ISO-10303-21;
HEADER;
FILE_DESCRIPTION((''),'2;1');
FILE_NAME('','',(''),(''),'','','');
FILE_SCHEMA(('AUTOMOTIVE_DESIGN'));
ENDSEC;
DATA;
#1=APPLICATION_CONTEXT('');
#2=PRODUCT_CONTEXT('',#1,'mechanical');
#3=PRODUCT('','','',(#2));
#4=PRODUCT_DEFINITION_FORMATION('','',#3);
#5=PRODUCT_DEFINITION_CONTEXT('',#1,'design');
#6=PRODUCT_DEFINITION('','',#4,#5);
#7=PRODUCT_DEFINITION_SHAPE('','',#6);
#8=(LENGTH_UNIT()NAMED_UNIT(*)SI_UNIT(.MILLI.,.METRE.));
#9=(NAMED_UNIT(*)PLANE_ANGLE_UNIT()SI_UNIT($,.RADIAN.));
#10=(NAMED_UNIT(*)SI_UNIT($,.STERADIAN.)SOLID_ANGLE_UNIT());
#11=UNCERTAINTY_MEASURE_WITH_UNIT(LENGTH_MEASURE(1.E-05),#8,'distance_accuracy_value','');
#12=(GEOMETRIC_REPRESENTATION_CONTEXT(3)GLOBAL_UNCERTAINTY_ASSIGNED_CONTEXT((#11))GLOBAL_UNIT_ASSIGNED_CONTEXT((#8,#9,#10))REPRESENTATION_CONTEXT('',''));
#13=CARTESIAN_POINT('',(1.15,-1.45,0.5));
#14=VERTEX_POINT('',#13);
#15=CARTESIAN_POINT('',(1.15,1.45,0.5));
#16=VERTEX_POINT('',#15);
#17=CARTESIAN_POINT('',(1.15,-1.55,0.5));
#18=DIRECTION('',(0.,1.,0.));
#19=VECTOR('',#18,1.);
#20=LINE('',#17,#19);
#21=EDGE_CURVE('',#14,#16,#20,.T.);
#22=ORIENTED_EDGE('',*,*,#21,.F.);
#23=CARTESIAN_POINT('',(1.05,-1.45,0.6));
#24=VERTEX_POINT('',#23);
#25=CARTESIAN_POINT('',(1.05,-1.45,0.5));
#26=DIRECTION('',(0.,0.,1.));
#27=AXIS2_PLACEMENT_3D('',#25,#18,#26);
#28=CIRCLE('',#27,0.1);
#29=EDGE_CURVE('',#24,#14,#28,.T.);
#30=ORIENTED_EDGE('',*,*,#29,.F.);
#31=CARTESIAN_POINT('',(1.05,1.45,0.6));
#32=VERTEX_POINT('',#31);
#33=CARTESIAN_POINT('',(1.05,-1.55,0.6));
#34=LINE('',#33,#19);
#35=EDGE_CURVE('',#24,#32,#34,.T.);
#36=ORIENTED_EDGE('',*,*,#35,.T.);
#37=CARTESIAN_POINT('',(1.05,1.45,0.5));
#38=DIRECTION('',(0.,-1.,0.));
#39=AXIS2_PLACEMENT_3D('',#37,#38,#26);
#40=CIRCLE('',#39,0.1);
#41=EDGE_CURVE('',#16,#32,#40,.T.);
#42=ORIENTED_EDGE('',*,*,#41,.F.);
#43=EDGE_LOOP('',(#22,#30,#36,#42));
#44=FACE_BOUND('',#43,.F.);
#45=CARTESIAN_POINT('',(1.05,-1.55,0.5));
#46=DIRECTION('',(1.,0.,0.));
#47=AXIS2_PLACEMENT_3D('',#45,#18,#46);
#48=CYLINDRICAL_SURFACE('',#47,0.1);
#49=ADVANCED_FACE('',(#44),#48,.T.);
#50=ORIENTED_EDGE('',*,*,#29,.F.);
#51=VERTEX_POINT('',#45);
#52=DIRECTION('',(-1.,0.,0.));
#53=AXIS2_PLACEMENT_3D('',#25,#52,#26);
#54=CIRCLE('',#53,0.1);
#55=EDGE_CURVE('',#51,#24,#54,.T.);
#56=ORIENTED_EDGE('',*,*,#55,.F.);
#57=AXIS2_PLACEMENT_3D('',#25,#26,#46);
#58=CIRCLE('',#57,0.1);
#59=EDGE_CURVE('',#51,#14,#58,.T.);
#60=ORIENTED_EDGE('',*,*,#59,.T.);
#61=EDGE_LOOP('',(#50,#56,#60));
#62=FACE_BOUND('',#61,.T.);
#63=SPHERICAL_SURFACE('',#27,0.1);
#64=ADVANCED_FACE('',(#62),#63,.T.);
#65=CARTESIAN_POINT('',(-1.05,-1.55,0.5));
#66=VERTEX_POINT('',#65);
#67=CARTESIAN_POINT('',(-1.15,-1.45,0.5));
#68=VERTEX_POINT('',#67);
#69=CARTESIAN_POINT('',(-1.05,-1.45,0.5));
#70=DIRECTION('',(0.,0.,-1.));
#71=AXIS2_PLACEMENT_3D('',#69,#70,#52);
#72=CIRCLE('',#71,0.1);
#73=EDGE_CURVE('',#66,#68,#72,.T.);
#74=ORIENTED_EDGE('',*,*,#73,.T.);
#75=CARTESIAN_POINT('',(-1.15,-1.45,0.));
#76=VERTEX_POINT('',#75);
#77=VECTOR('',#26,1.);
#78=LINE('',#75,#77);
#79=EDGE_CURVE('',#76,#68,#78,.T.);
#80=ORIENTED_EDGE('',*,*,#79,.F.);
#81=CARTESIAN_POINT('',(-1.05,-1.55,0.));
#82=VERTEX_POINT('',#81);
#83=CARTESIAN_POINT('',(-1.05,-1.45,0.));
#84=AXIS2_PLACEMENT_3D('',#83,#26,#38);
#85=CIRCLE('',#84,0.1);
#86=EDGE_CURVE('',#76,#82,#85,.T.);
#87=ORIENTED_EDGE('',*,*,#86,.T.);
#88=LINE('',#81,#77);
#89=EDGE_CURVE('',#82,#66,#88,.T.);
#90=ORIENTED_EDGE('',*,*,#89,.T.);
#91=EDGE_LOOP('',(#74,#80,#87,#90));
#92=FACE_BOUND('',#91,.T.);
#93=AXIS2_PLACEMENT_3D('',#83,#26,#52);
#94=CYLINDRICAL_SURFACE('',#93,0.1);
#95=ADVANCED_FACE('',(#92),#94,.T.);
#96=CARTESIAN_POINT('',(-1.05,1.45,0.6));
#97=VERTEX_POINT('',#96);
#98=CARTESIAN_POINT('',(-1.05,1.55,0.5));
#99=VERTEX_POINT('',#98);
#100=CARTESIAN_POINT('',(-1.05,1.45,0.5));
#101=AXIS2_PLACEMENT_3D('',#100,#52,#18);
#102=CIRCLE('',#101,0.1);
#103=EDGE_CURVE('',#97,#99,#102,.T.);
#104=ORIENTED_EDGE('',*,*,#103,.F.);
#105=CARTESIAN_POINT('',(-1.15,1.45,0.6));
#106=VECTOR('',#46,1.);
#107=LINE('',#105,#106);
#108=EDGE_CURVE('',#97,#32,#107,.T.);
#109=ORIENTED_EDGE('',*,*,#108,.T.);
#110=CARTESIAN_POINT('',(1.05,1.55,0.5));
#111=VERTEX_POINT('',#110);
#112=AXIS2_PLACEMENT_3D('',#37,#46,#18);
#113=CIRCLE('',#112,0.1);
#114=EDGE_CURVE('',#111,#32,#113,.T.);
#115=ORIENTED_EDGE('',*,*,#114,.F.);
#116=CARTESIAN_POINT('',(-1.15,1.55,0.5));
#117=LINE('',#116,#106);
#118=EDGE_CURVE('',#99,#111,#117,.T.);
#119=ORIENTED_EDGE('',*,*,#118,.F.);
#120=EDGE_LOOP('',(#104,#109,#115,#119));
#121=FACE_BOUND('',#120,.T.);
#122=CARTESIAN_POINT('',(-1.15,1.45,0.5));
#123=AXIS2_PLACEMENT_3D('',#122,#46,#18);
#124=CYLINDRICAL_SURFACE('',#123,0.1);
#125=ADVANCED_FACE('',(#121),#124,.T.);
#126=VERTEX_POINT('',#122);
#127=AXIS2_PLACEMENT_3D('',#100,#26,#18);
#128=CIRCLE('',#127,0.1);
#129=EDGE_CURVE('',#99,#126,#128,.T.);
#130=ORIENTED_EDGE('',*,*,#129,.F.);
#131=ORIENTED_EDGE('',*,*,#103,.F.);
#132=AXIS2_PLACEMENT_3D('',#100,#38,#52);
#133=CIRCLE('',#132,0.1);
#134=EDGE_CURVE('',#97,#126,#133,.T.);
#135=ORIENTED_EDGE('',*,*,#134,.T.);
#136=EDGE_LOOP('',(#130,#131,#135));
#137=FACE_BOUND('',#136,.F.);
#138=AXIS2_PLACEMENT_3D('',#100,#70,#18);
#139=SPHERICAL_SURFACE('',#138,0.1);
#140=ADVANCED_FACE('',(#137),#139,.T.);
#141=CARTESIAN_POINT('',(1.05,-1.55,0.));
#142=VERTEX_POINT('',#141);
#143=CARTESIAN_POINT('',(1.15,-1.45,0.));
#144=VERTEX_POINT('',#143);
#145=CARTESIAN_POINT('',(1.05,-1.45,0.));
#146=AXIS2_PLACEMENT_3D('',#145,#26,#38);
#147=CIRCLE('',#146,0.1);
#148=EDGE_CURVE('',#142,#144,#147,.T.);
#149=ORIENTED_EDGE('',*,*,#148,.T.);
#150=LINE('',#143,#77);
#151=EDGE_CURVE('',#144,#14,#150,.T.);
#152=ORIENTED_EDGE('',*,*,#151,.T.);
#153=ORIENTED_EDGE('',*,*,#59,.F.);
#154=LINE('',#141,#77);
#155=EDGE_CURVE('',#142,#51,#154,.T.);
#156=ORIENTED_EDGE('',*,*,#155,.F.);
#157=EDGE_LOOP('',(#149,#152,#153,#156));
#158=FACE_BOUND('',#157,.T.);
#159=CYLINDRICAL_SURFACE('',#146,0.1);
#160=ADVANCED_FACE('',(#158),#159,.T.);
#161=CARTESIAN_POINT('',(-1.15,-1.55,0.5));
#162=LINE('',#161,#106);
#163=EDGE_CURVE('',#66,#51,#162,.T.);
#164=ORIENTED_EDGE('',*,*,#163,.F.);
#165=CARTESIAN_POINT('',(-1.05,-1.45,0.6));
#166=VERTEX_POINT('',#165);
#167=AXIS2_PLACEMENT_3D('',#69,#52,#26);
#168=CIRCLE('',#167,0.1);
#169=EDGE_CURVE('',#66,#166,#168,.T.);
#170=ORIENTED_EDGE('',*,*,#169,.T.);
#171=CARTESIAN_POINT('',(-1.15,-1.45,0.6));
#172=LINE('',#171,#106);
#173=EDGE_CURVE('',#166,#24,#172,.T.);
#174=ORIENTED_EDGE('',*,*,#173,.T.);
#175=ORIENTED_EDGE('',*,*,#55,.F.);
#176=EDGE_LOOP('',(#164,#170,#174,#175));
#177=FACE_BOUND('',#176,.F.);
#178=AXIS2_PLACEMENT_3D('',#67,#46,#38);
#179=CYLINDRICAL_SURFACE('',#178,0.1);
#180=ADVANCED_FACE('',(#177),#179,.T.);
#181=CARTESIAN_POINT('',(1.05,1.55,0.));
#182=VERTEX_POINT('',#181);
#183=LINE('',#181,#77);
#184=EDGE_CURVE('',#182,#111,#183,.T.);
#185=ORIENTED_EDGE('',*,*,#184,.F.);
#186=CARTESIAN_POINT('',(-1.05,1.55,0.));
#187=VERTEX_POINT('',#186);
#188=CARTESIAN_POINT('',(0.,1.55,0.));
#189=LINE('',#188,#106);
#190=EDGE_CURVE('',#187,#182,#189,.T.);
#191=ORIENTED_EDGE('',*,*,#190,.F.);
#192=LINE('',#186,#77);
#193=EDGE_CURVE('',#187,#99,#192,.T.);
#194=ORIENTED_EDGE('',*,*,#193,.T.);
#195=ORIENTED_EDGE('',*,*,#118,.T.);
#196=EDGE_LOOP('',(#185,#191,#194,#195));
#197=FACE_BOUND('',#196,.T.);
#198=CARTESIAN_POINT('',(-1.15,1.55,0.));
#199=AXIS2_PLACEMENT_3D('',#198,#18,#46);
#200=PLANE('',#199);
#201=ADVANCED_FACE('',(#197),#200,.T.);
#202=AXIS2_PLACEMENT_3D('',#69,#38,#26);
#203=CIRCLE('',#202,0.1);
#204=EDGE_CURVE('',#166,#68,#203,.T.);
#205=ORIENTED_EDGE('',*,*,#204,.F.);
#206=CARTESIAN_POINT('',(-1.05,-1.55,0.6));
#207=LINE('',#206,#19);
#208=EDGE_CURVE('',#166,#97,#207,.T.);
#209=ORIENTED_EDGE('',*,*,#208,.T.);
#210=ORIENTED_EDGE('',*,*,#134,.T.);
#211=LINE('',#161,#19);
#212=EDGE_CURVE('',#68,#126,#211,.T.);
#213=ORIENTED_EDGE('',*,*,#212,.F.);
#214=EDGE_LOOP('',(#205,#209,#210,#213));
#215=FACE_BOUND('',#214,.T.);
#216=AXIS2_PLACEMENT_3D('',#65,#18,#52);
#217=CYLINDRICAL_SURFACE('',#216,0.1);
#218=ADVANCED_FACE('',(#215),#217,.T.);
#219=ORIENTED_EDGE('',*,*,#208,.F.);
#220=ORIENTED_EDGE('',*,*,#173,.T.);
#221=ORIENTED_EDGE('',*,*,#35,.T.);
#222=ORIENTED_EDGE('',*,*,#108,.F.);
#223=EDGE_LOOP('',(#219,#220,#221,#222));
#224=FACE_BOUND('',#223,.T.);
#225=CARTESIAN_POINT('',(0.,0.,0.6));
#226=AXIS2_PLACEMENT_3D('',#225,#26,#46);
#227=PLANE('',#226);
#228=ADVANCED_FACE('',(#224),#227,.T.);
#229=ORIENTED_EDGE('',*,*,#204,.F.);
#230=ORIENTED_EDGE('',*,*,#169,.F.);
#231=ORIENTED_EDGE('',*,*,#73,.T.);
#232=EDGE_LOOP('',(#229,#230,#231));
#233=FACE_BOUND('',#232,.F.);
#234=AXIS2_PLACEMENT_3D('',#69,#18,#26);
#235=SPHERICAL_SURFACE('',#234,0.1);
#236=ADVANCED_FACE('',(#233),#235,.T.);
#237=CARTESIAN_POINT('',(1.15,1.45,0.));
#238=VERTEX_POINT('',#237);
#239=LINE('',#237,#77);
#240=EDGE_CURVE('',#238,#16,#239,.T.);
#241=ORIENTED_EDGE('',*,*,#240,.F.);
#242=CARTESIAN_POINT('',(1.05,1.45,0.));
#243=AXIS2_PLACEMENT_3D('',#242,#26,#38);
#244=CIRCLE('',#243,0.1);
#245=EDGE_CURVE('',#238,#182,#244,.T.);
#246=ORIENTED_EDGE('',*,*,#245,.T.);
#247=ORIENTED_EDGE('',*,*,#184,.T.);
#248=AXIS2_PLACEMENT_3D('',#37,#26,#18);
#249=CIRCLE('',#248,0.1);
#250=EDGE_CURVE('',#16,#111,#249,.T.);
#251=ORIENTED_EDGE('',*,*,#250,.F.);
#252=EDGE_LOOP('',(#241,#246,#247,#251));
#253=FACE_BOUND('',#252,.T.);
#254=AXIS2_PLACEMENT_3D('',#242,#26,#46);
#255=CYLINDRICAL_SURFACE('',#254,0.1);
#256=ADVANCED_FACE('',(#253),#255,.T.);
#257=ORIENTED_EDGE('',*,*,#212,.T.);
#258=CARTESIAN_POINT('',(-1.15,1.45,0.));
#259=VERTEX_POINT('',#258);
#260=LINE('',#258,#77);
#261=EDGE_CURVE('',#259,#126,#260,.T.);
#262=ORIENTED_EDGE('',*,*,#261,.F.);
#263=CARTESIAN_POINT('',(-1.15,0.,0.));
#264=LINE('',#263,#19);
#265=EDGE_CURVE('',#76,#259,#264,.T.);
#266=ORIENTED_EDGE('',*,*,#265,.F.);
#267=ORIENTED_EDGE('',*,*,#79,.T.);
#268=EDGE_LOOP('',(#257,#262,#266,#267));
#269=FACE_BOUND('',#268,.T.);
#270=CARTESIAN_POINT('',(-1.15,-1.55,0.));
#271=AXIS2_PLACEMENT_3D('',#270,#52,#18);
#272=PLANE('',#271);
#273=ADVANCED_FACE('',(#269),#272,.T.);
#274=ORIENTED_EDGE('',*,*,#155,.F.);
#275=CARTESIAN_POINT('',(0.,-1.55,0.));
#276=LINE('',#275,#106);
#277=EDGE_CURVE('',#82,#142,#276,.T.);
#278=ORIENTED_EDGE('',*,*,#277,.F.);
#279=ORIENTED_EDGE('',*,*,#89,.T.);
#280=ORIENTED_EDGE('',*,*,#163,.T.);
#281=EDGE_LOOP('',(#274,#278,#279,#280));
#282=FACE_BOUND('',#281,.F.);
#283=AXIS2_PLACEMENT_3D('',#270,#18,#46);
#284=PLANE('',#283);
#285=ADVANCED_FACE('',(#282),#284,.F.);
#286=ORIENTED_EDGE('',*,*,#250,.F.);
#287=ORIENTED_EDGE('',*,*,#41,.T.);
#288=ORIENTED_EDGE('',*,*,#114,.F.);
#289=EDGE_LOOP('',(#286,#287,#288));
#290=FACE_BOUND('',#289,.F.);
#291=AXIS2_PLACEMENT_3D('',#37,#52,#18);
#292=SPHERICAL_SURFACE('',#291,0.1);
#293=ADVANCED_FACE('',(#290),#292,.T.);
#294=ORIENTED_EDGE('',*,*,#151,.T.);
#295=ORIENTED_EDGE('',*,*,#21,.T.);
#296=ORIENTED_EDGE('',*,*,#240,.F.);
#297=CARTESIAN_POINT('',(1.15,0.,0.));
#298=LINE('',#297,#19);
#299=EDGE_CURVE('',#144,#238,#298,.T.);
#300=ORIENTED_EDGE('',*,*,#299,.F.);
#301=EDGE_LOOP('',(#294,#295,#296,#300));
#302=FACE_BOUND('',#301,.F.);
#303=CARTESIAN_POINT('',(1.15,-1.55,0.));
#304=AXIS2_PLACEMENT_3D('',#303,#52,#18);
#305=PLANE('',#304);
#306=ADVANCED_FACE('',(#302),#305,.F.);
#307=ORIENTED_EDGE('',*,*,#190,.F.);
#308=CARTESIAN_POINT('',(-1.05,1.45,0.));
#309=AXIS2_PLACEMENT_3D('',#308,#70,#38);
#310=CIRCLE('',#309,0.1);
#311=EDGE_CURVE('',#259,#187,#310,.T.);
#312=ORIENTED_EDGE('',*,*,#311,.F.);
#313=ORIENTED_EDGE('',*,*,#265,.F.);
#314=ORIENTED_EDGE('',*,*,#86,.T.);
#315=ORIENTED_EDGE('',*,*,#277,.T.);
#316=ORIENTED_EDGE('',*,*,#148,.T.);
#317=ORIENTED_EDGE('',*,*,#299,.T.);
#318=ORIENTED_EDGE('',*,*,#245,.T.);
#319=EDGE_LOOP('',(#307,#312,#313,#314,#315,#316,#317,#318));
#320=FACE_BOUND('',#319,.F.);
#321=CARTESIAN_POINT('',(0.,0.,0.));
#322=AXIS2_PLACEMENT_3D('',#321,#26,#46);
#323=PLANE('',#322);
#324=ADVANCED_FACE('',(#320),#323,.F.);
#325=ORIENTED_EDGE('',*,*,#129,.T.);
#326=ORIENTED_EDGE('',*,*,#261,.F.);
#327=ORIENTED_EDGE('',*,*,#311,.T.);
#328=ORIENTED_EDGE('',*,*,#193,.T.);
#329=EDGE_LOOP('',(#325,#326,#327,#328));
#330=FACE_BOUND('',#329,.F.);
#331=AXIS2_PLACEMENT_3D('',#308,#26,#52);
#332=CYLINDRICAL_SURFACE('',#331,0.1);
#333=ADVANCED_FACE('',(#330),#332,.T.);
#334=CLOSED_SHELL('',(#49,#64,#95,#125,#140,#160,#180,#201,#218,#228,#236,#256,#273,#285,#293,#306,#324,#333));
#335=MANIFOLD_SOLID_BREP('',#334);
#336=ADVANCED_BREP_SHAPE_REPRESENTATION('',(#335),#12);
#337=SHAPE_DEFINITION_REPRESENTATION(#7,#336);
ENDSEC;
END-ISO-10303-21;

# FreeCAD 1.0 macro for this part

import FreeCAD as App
import Part
import Sketcher

V = App.Vector


def edges_at(feature, points):
    """Names of the edges that pass closest to the given points."""
    edges = feature.Shape.Edges
    near = lambda p: min(range(len(edges)), key=lambda i: edges[i].distToShape(Part.Vertex(*p))[0])
    return sorted({f"Edge{near(p) + 1}" for p in points})


def add_polygon(sketch, points):
    """Adds a closed chain of lines whose ends are joined by coincident constraints."""
    first, n = sketch.GeometryCount, len(points)
    for a, b in zip(points, points[1:] + points[:1]):
        sketch.addGeometry(Part.LineSegment(App.Vector(*a, 0), App.Vector(*b, 0)), False)
    for i in range(n):
        sketch.addConstraint(Sketcher.Constraint("Coincident", first + i, 2, first + (i + 1) % n, 1))

doc = App.newDocument("Part")
body = doc.addObject("PartDesign::Body", "Body")

# Sketch on XY plane
sketch1 = body.newObject("Sketcher::SketchObject", "Sketch")
sketch1.AttachmentSupport = (doc.getObject("XY_Plane"), [""])
sketch1.MapMode = "FlatFace"
add_polygon(sketch1, [(-1.15, 1.55), (-1.15, -1.55), (1.15, -1.55), (1.15, 1.55)])  # lines 0-3
sketch1.addConstraint(Sketcher.Constraint("Vertical", 0))
sketch1.addConstraint(Sketcher.Constraint("Horizontal", 1))
sketch1.addConstraint(Sketcher.Constraint("Vertical", 2))
sketch1.addConstraint(Sketcher.Constraint("Horizontal", 3))
sketch1.addConstraint(Sketcher.Constraint("Symmetric", 0, 2, 2, 2, -1, 1))
sketch1.addConstraint(Sketcher.Constraint("DistanceX", 1, 1, 1, 2, 2.3))
sketch1.addConstraint(Sketcher.Constraint("DistanceY", 0, 2, 0, 1, 3.1))
pad1 = body.newObject("PartDesign::Pad", "Pad")
pad1.Profile = sketch1
pad1.Length = 0.6
doc.recompute()

fillet = body.newObject("PartDesign::Fillet", "Fillet")
fillet.Base = (pad1, edges_at(pad1, [
    (-1.15, 1.55, 0.3),
    (0, 1.55, 0.6),
    (-1.15, 0, 0.6),
    (1.15, 1.55, 0.3),
    (1.15, 0, 0.6),
    (0, -1.55, 0.6),
    (1.15, -1.55, 0.3),
    (-1.15, -1.55, 0.3),
]))
fillet.Radius = 0.1

doc.recompute()
